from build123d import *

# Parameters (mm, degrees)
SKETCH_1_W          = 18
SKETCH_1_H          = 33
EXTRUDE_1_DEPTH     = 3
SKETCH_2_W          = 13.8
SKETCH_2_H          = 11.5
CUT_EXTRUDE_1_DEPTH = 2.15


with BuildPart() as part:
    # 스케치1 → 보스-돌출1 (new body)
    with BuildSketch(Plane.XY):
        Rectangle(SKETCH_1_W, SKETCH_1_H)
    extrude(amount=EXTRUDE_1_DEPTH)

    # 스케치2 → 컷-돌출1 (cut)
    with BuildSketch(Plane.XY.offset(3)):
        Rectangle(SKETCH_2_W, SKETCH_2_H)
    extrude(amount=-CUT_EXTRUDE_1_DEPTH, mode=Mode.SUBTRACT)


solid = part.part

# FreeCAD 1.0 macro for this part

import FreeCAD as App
import Part
import Sketcher

V = App.Vector
Q = App.Units.Quantity

doc = App.newDocument("Part")
body = doc.addObject("PartDesign::Body", "Body")

sketch1 = body.newObject("Sketcher::SketchObject", "Sketch")
sketch1.AttachmentSupport = (doc.getObject("XY_Plane"), [""])
sketch1.MapMode = "FlatFace"
sketch1.addGeometry(Part.LineSegment(V(-9, 16, 0), V(-9, -16, 0)), False)
sketch1.addGeometry(Part.LineSegment(V(-9, -16, 0), V(9, -16, 0)), False)
sketch1.addGeometry(Part.LineSegment(V(9, -16, 0), V(9, 16, 0)), False)
sketch1.addGeometry(Part.LineSegment(V(9, 16, 0), V(-9, 16, 0)), False)
sketch1.addConstraint(Sketcher.Constraint("Coincident", 0, 2, 1, 1))
sketch1.addConstraint(Sketcher.Constraint("Coincident", 1, 2, 2, 1))
sketch1.addConstraint(Sketcher.Constraint("Coincident", 2, 2, 3, 1))
sketch1.addConstraint(Sketcher.Constraint("Coincident", 3, 2, 0, 1))
sketch1.addConstraint(Sketcher.Constraint("Vertical", 0))
sketch1.addConstraint(Sketcher.Constraint("Horizontal", 1))
sketch1.addConstraint(Sketcher.Constraint("Vertical", 2))
sketch1.addConstraint(Sketcher.Constraint("Horizontal", 3))
sketch1.addConstraint(Sketcher.Constraint("Symmetric", 0, 2, 2, 2, -1, 1))
sketch1.addConstraint(Sketcher.Constraint("DistanceX", 1, 1, 1, 2, Q("18 mm")))
sketch1.addConstraint(Sketcher.Constraint("DistanceY", 0, 2, 0, 1, Q("33 mm")))
pad1 = body.newObject("PartDesign::Pad", "Pad")
pad1.Profile = sketch1
pad1.Length = 3

sketch2 = body.newObject("Sketcher::SketchObject", "Sketch001")
sketch2.AttachmentSupport = (doc.getObject("XY_Plane"), [""])
sketch2.MapMode = "FlatFace"
sketch2.AttachmentOffset = App.Placement(V(0, 0, 3), App.Rotation())
sketch2.addGeometry(Part.LineSegment(V(-7, 6, 0), V(-7, -6, 0)), False)
sketch2.addGeometry(Part.LineSegment(V(-7, -6, 0), V(7, -6, 0)), False)
sketch2.addGeometry(Part.LineSegment(V(7, -6, 0), V(7, 6, 0)), False)
sketch2.addGeometry(Part.LineSegment(V(7, 6, 0), V(-7, 6, 0)), False)
sketch2.addConstraint(Sketcher.Constraint("Coincident", 0, 2, 1, 1))
sketch2.addConstraint(Sketcher.Constraint("Coincident", 1, 2, 2, 1))
sketch2.addConstraint(Sketcher.Constraint("Coincident", 2, 2, 3, 1))
sketch2.addConstraint(Sketcher.Constraint("Coincident", 3, 2, 0, 1))
sketch2.addConstraint(Sketcher.Constraint("Vertical", 0))
sketch2.addConstraint(Sketcher.Constraint("Horizontal", 1))
sketch2.addConstraint(Sketcher.Constraint("Vertical", 2))
sketch2.addConstraint(Sketcher.Constraint("Horizontal", 3))
sketch2.addConstraint(Sketcher.Constraint("Symmetric", 0, 2, 2, 2, -1, 1))
sketch2.addConstraint(Sketcher.Constraint("DistanceX", 1, 1, 1, 2, Q("13.8 mm")))
sketch2.addConstraint(Sketcher.Constraint("DistanceY", 0, 2, 0, 1, Q("11.5 mm")))
pocket1 = body.newObject("PartDesign::Pocket", "Pocket")
pocket1.Profile = sketch2
pocket1.Length = 2.15

doc.recompute()
